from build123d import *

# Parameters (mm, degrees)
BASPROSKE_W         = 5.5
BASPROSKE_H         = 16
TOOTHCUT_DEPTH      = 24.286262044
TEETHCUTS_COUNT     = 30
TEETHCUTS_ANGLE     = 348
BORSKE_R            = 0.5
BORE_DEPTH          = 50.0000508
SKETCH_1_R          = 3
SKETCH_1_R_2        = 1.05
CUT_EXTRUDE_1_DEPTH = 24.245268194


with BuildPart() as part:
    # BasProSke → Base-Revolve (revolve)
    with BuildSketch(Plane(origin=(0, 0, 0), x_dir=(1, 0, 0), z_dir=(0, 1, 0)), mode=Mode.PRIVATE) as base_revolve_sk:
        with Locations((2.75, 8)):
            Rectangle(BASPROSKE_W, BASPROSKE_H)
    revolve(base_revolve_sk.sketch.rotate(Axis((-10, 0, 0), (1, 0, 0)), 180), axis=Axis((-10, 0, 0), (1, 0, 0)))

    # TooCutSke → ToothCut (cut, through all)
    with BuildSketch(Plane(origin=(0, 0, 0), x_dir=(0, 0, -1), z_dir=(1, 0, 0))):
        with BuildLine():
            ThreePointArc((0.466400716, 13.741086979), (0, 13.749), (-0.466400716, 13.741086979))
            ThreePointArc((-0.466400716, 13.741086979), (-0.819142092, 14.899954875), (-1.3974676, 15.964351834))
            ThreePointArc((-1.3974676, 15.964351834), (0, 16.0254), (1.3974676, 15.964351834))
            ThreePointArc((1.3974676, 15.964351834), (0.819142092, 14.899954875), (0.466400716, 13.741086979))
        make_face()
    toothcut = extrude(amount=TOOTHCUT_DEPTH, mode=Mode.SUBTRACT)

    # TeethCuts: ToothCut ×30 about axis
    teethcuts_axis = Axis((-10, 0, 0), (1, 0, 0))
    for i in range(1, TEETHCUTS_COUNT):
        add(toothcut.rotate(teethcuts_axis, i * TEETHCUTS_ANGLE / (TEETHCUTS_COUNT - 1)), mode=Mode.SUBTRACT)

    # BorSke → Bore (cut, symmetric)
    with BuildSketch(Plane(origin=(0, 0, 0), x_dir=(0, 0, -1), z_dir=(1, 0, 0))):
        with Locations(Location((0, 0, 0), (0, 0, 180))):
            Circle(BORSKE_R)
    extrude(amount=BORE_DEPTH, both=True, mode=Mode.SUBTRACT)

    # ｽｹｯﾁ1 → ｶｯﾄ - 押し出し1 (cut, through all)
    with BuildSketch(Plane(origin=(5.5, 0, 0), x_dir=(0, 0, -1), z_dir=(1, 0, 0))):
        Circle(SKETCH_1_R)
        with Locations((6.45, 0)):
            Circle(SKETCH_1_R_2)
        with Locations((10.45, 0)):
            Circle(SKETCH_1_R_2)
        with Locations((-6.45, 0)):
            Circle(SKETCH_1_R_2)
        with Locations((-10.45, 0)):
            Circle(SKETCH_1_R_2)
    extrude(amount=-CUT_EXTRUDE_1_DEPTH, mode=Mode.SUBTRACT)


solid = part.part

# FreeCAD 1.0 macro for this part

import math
import FreeCAD as App
import Part
import Sketcher

V = App.Vector


def add_polygon(sketch, points):
    """Adds a closed chain of lines whose ends are joined by coincident constraints."""
    first, n = sketch.GeometryCount, len(points)
    for a, b in zip(points, points[1:] + points[:1]):
        sketch.addGeometry(Part.LineSegment(App.Vector(*a, 0), App.Vector(*b, 0)), False)
    for i in range(n):
        sketch.addConstraint(Sketcher.Constraint("Coincident", first + i, 2, first + (i + 1) % n, 1))

doc = App.newDocument("Part")
params = doc.addObject("Spreadsheet::Sheet", "Params")
for row, (alias, value) in enumerate([
    ("sketch1_height", "16 mm"),
    ("sketch1_width", "5.5 mm"),
    ("revolution_angle", "360 deg"),
    ("sketch2_radius", "6 mm"),
    ("sketch3_diameter", "1 mm"),
    ("pocket2_length", "100.000102 mm"),
    ("sketch4_diameter", "6 mm"),
    ("sketch4_diameter2", "2.1 mm"),
], start=1):
    params.set(f"A{row}", alias)
    params.set(f"B{row}", "=" + value)
    params.setAlias(f"B{row}", alias)

body = doc.addObject("PartDesign::Body", "Body")

# Sketch on XZ plane
sketch1 = doc.addObject("Sketcher::SketchObject", "Sketch")
body.addObject(sketch1)
sketch1.AttachmentSupport = (doc.XZ_Plane, [""])
sketch1.MapMode = "FlatFace"
add_polygon(sketch1, [(0, -16), (0, 0), (5.5, 0), (5.5, -16)])  # lines 0-3
sketch1.addConstraint([
    Sketcher.Constraint("Vertical", 0),
    Sketcher.Constraint("Horizontal", 1),
    Sketcher.Constraint("Vertical", 2),
    Sketcher.Constraint("Horizontal", 3),
    Sketcher.Constraint("Coincident", 0, 2, -1, 1),
    Sketcher.Constraint("DistanceY", 0, 1, 0, 2, 16.0),
    Sketcher.Constraint("DistanceX", 1, 1, 1, 2, 5.5),
])
sketch1.setExpression("Constraints[9]", "Params.sketch1_height")
sketch1.setExpression("Constraints[10]", "Params.sketch1_width")
revolution = doc.addObject("PartDesign::Revolution", "Revolution")
body.addObject(revolution)
revolution.Profile = sketch1
revolution.ReferenceAxis = (sketch1, ["H_Axis"])
revolution.setExpression("Angle", "Params.revolution_angle")

# Sketch on YZ plane
sketch2 = doc.addObject("Sketcher::SketchObject", "Sketch001")
body.addObject(sketch2)
sketch2.AttachmentSupport = (doc.YZ_Plane, [""])
sketch2.MapMode = "FlatFace"
sketch2.addGeometry([
    Part.ArcOfCircle(Part.Circle(V(0, 0, 0), V(0, 0, 1), 13.749), math.radians(-1.94399), math.radians(1.94399)),
    Part.ArcOfCircle(Part.Circle(V(12.582284, -6.353435, 0), V(0, 0, 1), 6), math.radians(55.689458), math.radians(78.864269)),
    Part.ArcOfCircle(Part.Circle(V(0, 0, 0), V(0, 0, 1), 16.0254), math.radians(-5.002735), math.radians(5.002735)),
    Part.ArcOfCircle(Part.Circle(V(12.582284, 6.353435, 0), V(0, 0, 1), 6), math.radians(-78.864269), math.radians(-55.689458)),
], False)
sketch2.addConstraint([
    Sketcher.Constraint("Coincident", 0, 1, 1, 2),
    Sketcher.Constraint("Coincident", 1, 1, 2, 1),
    Sketcher.Constraint("Coincident", 2, 2, 3, 2),
    Sketcher.Constraint("Coincident", 3, 1, 0, 2),
    Sketcher.Constraint("Coincident", 0, 3, -1, 1),
    Sketcher.Constraint("Coincident", 2, 3, -1, 1),
    Sketcher.Constraint("Equal", 1, 3),
    Sketcher.Constraint("Symmetric", 1, 3, 3, 3, -1),
    Sketcher.Constraint("Radius", 1, 6.0),
    Sketcher.Constraint("Radius", 0, 13.749),
    Sketcher.Constraint("Radius", 2, 16.0254),
    Sketcher.Constraint("DistanceY", 0, 1, -1, 1, 0.466401),
    Sketcher.Constraint("DistanceX", -1, 1, 1, 1, 15.964352),
])
sketch2.setExpression("Constraints[8]", "Params.sketch2_radius")
pocket1 = doc.addObject("PartDesign::Pocket", "Pocket")
body.addObject(pocket1)
pocket1.Profile = sketch2
pocket1.Type = "ThroughAll"
pocket1.Reversed = True
doc.recompute()

polarpattern = doc.addObject("PartDesign::PolarPattern", "PolarPattern")
body.addObject(polarpattern)
polarpattern.Originals = [pocket1]
polarpattern.Axis = (doc.X_Axis, [""])
polarpattern.Angle = 360
polarpattern.Occurrences = 30
body.Tip = polarpattern

# Sketch on YZ plane
sketch3 = doc.addObject("Sketcher::SketchObject", "Sketch002")
body.addObject(sketch3)
sketch3.AttachmentSupport = (doc.YZ_Plane, [""])
sketch3.MapMode = "FlatFace"
sketch3.addGeometry(Part.Circle(V(0, 0, 0), V(0, 0, 1), 0.5), False)
sketch3.addConstraint([
    Sketcher.Constraint("Coincident", 0, 3, -1, 1),
    Sketcher.Constraint("Diameter", 0, 1.0),
])
sketch3.setExpression("Constraints[1]", "Params.sketch3_diameter")
pocket2 = doc.addObject("PartDesign::Pocket", "Pocket001")
body.addObject(pocket2)
pocket2.Profile = sketch3
pocket2.setExpression("Length", "Params.pocket2_length")
pocket2.Midplane = True

# Sketch on YZ plane
sketch4 = doc.addObject("Sketcher::SketchObject", "Sketch003")
body.addObject(sketch4)
sketch4.AttachmentSupport = (doc.YZ_Plane, [""])
sketch4.MapMode = "FlatFace"
sketch4.AttachmentOffset = App.Placement(V(0, 0, 5.5), App.Rotation())
sketch4.addGeometry([
    Part.Circle(V(0, 0, 0), V(0, 0, 1), 3),  # 0
    Part.Circle(V(0, -6.45, 0), V(0, 0, 1), 1.05),  # 1
    Part.Circle(V(0, -10.45, 0), V(0, 0, 1), 1.05),  # 2
    Part.Circle(V(0, 6.45, 0), V(0, 0, 1), 1.05),  # 3
    Part.Circle(V(0, 10.45, 0), V(0, 0, 1), 1.05),  # 4
], False)
sketch4.addConstraint([
    Sketcher.Constraint("Coincident", 0, 3, -1, 1),
    Sketcher.Constraint("Equal", 1, 2),
    Sketcher.Constraint("Equal", 2, 3),
    Sketcher.Constraint("Equal", 3, 4),
    Sketcher.Constraint("Symmetric", 1, 3, 3, 3, -1, 1),
    Sketcher.Constraint("Symmetric", 2, 3, 4, 3, -1, 1),
    Sketcher.Constraint("PointOnObject", 1, 3, -2),
    Sketcher.Constraint("PointOnObject", 2, 3, -2),
    Sketcher.Constraint("Diameter", 0, 6.0),
    Sketcher.Constraint("Diameter", 1, 2.1),
    Sketcher.Constraint("DistanceY", 2, 3, 1, 3, 4.0),
    Sketcher.Constraint("DistanceY", 1, 3, 3, 3, 12.9),
])
sketch4.setExpression("Constraints[8]", "Params.sketch4_diameter")
sketch4.setExpression("Constraints[9]", "Params.sketch4_diameter2")
pocket3 = doc.addObject("PartDesign::Pocket", "Pocket002")
body.addObject(pocket3)
pocket3.Profile = sketch4
pocket3.Type = "ThroughAll"

doc.recompute()
